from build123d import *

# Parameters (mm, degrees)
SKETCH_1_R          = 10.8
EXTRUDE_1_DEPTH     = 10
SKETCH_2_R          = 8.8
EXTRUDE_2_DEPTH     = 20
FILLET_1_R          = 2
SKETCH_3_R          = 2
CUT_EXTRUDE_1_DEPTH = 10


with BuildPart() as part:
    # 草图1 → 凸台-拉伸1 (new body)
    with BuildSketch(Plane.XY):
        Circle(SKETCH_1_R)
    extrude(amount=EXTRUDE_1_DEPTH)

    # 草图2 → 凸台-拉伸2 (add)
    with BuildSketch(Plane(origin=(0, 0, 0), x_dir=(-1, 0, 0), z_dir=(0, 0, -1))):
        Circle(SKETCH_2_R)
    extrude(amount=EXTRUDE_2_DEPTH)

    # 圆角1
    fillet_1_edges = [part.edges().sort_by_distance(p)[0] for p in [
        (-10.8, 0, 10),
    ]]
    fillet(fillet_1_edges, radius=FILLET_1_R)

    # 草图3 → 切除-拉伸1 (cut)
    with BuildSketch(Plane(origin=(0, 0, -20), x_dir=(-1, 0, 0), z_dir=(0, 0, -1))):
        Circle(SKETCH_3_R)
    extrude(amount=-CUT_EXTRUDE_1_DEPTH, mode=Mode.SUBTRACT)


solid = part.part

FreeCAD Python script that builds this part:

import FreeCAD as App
import Part
import Sketcher
from FreeCAD import Vector


def edges_at(feature, points):
    """Names of the edges that pass closest to the given points."""
    edges = feature.Shape.Edges
    near = lambda p: min(range(len(edges)), key=lambda i: edges[i].distToShape(Part.Vertex(*p))[0])
    return sorted({f"Edge{near(p) + 1}" for p in points})

doc = App.newDocument("Part")
body = doc.addObject("PartDesign::Body", "Body")

sketch1 = body.newObject("Sketcher::SketchObject", "Sketch")
sketch1.AttachmentSupport = (doc.getObject("XY_Plane"), [""])
sketch1.MapMode = "FlatFace"
sketch1.addGeometry(Part.Circle(Vector(0, 0, 0), Vector(0, 0, 1), 10.8), False)
sketch1.addConstraint(Sketcher.Constraint("Coincident", 0, 3, -1, 1))
sketch1.addConstraint(Sketcher.Constraint("Diameter", 0, 21.6))
pad1 = body.newObject("PartDesign::Pad", "Pad")
pad1.Profile = sketch1
pad1.Length = 10

sketch2 = body.newObject("Sketcher::SketchObject", "Sketch001")
sketch2.AttachmentSupport = (doc.getObject("XY_Plane"), [""])
sketch2.MapMode = "FlatFace"
sketch2.addGeometry(Part.Circle(Vector(0, 0, 0), Vector(0, 0, 1), 8.8), False)
sketch2.addConstraint(Sketcher.Constraint("Coincident", 0, 3, -1, 1))
sketch2.addConstraint(Sketcher.Constraint("Diameter", 0, 17.6))
pad2 = body.newObject("PartDesign::Pad", "Pad001")
pad2.Profile = sketch2
pad2.Length = 20
pad2.Reversed = True
doc.recompute()

fillet = body.newObject("PartDesign::Fillet", "Fillet")
fillet.Base = (pad2, edges_at(pad2, [(-10.8, 0, 10)]))
fillet.Radius = 2

sketch3 = body.newObject("Sketcher::SketchObject", "Sketch002")
sketch3.AttachmentSupport = (doc.getObject("XY_Plane"), [""])
sketch3.MapMode = "FlatFace"
sketch3.AttachmentOffset = App.Placement(Vector(0, 0, -20), App.Rotation())
sketch3.addGeometry(Part.Circle(Vector(0, 0, 0), Vector(0, 0, 1), 2), False)
sketch3.addConstraint(Sketcher.Constraint("Coincident", 0, 3, -1, 1))
sketch3.addConstraint(Sketcher.Constraint("Diameter", 0, 4.0))
pocket1 = body.newObject("PartDesign::Pocket", "Pocket")
pocket1.Profile = sketch3
pocket1.Length = 10
pocket1.Reversed = True

doc.recompute()
